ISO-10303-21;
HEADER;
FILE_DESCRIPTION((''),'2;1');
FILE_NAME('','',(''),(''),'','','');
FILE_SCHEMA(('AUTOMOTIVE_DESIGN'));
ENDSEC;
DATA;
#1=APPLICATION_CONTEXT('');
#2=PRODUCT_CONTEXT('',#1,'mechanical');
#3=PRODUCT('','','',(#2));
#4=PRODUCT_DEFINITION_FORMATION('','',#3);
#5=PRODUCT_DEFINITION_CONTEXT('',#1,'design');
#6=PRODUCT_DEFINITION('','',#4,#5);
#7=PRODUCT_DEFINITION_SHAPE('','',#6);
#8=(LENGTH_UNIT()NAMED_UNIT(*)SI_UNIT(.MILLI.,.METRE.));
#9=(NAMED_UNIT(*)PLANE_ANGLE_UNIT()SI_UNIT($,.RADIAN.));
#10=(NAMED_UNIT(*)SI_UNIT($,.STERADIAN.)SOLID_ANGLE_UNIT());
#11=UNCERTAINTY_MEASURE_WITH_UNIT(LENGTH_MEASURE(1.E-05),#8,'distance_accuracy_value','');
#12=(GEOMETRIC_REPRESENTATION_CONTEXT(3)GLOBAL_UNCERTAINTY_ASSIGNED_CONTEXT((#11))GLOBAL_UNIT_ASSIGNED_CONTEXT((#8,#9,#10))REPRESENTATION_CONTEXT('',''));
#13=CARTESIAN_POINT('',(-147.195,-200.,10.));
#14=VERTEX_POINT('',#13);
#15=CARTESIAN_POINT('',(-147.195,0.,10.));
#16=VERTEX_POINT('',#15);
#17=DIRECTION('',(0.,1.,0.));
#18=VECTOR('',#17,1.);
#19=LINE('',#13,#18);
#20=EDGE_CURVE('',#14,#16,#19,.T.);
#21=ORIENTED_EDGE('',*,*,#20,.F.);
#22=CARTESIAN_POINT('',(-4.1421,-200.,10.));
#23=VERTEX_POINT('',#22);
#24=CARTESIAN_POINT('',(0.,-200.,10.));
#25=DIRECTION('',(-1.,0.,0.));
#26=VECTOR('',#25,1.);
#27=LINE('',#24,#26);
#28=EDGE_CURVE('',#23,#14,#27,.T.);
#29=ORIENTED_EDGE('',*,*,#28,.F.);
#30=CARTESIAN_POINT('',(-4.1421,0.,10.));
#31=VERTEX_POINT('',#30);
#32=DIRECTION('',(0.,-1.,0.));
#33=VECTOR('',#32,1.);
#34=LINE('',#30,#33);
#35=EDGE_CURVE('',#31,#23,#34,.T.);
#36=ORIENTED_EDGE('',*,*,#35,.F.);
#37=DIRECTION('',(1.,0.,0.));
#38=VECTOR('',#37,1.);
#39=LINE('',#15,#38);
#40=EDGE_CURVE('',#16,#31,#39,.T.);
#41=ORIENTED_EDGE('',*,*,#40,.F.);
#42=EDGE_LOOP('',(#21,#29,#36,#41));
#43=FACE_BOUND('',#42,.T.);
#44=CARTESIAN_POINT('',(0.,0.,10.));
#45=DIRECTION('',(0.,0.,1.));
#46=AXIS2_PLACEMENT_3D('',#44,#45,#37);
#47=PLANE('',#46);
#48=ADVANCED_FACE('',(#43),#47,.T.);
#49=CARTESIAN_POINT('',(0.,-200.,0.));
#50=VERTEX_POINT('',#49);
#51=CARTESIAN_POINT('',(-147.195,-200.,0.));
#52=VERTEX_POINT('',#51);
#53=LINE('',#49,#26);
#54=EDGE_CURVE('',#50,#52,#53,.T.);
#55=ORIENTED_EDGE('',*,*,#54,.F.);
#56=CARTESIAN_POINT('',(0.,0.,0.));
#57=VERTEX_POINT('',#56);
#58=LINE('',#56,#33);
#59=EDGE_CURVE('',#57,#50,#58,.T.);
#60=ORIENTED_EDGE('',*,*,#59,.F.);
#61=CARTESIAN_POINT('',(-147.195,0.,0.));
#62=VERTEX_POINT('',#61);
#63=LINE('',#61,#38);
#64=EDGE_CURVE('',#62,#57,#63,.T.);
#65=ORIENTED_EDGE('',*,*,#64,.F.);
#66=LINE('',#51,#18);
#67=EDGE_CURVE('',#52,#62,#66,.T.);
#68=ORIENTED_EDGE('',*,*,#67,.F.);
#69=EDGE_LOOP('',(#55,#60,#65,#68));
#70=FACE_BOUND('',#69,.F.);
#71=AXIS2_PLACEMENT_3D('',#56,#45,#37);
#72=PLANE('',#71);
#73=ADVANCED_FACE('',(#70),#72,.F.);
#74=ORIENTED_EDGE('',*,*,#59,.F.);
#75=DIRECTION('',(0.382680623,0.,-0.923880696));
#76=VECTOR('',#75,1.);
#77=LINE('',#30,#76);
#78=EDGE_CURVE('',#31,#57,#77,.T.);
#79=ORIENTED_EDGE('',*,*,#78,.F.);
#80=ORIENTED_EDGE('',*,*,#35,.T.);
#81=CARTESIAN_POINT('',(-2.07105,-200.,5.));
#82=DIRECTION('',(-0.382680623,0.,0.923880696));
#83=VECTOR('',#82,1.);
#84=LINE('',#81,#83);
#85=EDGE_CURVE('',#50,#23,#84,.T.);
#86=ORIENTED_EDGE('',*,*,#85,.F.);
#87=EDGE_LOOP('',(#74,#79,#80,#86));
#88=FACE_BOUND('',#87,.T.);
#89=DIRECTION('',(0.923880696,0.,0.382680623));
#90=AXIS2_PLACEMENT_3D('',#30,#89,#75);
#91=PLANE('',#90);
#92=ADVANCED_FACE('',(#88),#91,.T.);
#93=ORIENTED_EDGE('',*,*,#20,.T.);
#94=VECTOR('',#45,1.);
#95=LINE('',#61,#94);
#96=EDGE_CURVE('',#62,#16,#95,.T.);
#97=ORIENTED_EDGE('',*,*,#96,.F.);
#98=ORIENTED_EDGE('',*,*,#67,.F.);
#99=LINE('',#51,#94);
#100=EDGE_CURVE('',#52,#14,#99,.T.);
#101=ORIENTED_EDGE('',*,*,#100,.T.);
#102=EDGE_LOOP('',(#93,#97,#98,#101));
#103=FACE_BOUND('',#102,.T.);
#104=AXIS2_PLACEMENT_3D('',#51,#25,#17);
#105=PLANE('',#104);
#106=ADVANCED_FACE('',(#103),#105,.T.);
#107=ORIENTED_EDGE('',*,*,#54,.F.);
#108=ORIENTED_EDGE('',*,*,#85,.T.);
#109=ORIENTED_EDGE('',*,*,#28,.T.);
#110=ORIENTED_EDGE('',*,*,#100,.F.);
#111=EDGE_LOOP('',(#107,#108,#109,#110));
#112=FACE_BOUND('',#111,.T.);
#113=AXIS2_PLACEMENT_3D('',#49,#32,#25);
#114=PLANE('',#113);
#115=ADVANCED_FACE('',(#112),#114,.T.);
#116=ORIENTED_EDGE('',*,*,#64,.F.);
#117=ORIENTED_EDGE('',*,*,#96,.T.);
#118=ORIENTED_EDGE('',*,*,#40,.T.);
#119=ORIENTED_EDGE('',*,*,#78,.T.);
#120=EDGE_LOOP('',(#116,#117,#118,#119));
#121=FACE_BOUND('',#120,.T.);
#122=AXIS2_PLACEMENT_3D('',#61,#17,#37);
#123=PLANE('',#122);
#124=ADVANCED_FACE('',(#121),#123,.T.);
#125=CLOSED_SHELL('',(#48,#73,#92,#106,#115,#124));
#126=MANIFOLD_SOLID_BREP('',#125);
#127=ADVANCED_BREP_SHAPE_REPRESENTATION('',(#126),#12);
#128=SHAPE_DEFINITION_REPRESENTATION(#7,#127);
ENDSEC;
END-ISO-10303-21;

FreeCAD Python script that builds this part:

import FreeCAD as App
import Part
import Sketcher
from FreeCAD import Vector
Q = App.Units.Quantity


def add_polygon(sketch, points):
    """Adds a closed chain of lines whose ends are joined by coincident constraints."""
    first, n = sketch.GeometryCount, len(points)
    for a, b in zip(points, points[1:] + points[:1]):
        sketch.addGeometry(Part.LineSegment(App.Vector(*a, 0), App.Vector(*b, 0)), False)
    for i in range(n):
        sketch.addConstraint(Sketcher.Constraint("Coincident", first + i, 2, first + (i + 1) % n, 1))

doc = App.newDocument("Part")
params = doc.addObject("Spreadsheet::Sheet", "Params")
for row, (alias, value) in enumerate([
    ("sketch1_height", "200 mm"),
    ("pad1_length", "10 mm"),
    ("sketch2_height", "10 mm"),
], start=1):
    params.set(f"A{row}", alias)
    params.set(f"B{row}", "=" + value)
    params.setAlias(f"B{row}", alias)

body = doc.addObject("PartDesign::Body", "Body")

# Sketch on XY plane
sketch1 = doc.addObject("Sketcher::SketchObject", "Sketch")
body.addObject(sketch1)
sketch1.AttachmentSupport = (doc.XY_Plane, [""])
sketch1.MapMode = "FlatFace"
add_polygon(sketch1, [(0, 0), (-147, 0), (-147, -200), (0, -200)])  # lines 0-3
sketch1.addConstraint([
    Sketcher.Constraint("Horizontal", 0),
    Sketcher.Constraint("Vertical", 1),
    Sketcher.Constraint("Horizontal", 2),
    Sketcher.Constraint("Vertical", 3),
    Sketcher.Constraint("Coincident", 3, 2, -1, 1),
    Sketcher.Constraint("DistanceY", 1, 2, 1, 1, 200.0),
    Sketcher.Constraint("DistanceX", 0, 2, 0, 1, 147.195),
])
sketch1.setExpression("Constraints[9]", "Params.sketch1_height")
pad1 = doc.addObject("PartDesign::Pad", "Pad")
body.addObject(pad1)
pad1.Profile = sketch1
pad1.setExpression("Length", "Params.pad1_length")

# Sketch on XZ plane
sketch2 = doc.addObject("Sketcher::SketchObject", "Sketch001")
body.addObject(sketch2)
sketch2.AttachmentSupport = (doc.XZ_Plane, [""])
sketch2.MapMode = "FlatFace"
add_polygon(sketch2, [(0, 0), (-4.1, 10), (0, 10)])  # lines 0-2
sketch2.addConstraint([
    Sketcher.Constraint("Horizontal", 1),
    Sketcher.Constraint("Vertical", 2),
    Sketcher.Constraint("Coincident", 2, 2, -1, 1),
    Sketcher.Constraint("DistanceY", 2, 2, 2, 1, 10.0),
    Sketcher.Constraint("Angle", 0, Q("112.4998 deg")),
])
sketch2.setExpression("Constraints[6]", "Params.sketch2_height")
pocket1 = doc.addObject("PartDesign::Pocket", "Pocket")
body.addObject(pocket1)
pocket1.Profile = sketch2
pocket1.Type = "ThroughAll"
pocket1.Reversed = True

doc.recompute()
